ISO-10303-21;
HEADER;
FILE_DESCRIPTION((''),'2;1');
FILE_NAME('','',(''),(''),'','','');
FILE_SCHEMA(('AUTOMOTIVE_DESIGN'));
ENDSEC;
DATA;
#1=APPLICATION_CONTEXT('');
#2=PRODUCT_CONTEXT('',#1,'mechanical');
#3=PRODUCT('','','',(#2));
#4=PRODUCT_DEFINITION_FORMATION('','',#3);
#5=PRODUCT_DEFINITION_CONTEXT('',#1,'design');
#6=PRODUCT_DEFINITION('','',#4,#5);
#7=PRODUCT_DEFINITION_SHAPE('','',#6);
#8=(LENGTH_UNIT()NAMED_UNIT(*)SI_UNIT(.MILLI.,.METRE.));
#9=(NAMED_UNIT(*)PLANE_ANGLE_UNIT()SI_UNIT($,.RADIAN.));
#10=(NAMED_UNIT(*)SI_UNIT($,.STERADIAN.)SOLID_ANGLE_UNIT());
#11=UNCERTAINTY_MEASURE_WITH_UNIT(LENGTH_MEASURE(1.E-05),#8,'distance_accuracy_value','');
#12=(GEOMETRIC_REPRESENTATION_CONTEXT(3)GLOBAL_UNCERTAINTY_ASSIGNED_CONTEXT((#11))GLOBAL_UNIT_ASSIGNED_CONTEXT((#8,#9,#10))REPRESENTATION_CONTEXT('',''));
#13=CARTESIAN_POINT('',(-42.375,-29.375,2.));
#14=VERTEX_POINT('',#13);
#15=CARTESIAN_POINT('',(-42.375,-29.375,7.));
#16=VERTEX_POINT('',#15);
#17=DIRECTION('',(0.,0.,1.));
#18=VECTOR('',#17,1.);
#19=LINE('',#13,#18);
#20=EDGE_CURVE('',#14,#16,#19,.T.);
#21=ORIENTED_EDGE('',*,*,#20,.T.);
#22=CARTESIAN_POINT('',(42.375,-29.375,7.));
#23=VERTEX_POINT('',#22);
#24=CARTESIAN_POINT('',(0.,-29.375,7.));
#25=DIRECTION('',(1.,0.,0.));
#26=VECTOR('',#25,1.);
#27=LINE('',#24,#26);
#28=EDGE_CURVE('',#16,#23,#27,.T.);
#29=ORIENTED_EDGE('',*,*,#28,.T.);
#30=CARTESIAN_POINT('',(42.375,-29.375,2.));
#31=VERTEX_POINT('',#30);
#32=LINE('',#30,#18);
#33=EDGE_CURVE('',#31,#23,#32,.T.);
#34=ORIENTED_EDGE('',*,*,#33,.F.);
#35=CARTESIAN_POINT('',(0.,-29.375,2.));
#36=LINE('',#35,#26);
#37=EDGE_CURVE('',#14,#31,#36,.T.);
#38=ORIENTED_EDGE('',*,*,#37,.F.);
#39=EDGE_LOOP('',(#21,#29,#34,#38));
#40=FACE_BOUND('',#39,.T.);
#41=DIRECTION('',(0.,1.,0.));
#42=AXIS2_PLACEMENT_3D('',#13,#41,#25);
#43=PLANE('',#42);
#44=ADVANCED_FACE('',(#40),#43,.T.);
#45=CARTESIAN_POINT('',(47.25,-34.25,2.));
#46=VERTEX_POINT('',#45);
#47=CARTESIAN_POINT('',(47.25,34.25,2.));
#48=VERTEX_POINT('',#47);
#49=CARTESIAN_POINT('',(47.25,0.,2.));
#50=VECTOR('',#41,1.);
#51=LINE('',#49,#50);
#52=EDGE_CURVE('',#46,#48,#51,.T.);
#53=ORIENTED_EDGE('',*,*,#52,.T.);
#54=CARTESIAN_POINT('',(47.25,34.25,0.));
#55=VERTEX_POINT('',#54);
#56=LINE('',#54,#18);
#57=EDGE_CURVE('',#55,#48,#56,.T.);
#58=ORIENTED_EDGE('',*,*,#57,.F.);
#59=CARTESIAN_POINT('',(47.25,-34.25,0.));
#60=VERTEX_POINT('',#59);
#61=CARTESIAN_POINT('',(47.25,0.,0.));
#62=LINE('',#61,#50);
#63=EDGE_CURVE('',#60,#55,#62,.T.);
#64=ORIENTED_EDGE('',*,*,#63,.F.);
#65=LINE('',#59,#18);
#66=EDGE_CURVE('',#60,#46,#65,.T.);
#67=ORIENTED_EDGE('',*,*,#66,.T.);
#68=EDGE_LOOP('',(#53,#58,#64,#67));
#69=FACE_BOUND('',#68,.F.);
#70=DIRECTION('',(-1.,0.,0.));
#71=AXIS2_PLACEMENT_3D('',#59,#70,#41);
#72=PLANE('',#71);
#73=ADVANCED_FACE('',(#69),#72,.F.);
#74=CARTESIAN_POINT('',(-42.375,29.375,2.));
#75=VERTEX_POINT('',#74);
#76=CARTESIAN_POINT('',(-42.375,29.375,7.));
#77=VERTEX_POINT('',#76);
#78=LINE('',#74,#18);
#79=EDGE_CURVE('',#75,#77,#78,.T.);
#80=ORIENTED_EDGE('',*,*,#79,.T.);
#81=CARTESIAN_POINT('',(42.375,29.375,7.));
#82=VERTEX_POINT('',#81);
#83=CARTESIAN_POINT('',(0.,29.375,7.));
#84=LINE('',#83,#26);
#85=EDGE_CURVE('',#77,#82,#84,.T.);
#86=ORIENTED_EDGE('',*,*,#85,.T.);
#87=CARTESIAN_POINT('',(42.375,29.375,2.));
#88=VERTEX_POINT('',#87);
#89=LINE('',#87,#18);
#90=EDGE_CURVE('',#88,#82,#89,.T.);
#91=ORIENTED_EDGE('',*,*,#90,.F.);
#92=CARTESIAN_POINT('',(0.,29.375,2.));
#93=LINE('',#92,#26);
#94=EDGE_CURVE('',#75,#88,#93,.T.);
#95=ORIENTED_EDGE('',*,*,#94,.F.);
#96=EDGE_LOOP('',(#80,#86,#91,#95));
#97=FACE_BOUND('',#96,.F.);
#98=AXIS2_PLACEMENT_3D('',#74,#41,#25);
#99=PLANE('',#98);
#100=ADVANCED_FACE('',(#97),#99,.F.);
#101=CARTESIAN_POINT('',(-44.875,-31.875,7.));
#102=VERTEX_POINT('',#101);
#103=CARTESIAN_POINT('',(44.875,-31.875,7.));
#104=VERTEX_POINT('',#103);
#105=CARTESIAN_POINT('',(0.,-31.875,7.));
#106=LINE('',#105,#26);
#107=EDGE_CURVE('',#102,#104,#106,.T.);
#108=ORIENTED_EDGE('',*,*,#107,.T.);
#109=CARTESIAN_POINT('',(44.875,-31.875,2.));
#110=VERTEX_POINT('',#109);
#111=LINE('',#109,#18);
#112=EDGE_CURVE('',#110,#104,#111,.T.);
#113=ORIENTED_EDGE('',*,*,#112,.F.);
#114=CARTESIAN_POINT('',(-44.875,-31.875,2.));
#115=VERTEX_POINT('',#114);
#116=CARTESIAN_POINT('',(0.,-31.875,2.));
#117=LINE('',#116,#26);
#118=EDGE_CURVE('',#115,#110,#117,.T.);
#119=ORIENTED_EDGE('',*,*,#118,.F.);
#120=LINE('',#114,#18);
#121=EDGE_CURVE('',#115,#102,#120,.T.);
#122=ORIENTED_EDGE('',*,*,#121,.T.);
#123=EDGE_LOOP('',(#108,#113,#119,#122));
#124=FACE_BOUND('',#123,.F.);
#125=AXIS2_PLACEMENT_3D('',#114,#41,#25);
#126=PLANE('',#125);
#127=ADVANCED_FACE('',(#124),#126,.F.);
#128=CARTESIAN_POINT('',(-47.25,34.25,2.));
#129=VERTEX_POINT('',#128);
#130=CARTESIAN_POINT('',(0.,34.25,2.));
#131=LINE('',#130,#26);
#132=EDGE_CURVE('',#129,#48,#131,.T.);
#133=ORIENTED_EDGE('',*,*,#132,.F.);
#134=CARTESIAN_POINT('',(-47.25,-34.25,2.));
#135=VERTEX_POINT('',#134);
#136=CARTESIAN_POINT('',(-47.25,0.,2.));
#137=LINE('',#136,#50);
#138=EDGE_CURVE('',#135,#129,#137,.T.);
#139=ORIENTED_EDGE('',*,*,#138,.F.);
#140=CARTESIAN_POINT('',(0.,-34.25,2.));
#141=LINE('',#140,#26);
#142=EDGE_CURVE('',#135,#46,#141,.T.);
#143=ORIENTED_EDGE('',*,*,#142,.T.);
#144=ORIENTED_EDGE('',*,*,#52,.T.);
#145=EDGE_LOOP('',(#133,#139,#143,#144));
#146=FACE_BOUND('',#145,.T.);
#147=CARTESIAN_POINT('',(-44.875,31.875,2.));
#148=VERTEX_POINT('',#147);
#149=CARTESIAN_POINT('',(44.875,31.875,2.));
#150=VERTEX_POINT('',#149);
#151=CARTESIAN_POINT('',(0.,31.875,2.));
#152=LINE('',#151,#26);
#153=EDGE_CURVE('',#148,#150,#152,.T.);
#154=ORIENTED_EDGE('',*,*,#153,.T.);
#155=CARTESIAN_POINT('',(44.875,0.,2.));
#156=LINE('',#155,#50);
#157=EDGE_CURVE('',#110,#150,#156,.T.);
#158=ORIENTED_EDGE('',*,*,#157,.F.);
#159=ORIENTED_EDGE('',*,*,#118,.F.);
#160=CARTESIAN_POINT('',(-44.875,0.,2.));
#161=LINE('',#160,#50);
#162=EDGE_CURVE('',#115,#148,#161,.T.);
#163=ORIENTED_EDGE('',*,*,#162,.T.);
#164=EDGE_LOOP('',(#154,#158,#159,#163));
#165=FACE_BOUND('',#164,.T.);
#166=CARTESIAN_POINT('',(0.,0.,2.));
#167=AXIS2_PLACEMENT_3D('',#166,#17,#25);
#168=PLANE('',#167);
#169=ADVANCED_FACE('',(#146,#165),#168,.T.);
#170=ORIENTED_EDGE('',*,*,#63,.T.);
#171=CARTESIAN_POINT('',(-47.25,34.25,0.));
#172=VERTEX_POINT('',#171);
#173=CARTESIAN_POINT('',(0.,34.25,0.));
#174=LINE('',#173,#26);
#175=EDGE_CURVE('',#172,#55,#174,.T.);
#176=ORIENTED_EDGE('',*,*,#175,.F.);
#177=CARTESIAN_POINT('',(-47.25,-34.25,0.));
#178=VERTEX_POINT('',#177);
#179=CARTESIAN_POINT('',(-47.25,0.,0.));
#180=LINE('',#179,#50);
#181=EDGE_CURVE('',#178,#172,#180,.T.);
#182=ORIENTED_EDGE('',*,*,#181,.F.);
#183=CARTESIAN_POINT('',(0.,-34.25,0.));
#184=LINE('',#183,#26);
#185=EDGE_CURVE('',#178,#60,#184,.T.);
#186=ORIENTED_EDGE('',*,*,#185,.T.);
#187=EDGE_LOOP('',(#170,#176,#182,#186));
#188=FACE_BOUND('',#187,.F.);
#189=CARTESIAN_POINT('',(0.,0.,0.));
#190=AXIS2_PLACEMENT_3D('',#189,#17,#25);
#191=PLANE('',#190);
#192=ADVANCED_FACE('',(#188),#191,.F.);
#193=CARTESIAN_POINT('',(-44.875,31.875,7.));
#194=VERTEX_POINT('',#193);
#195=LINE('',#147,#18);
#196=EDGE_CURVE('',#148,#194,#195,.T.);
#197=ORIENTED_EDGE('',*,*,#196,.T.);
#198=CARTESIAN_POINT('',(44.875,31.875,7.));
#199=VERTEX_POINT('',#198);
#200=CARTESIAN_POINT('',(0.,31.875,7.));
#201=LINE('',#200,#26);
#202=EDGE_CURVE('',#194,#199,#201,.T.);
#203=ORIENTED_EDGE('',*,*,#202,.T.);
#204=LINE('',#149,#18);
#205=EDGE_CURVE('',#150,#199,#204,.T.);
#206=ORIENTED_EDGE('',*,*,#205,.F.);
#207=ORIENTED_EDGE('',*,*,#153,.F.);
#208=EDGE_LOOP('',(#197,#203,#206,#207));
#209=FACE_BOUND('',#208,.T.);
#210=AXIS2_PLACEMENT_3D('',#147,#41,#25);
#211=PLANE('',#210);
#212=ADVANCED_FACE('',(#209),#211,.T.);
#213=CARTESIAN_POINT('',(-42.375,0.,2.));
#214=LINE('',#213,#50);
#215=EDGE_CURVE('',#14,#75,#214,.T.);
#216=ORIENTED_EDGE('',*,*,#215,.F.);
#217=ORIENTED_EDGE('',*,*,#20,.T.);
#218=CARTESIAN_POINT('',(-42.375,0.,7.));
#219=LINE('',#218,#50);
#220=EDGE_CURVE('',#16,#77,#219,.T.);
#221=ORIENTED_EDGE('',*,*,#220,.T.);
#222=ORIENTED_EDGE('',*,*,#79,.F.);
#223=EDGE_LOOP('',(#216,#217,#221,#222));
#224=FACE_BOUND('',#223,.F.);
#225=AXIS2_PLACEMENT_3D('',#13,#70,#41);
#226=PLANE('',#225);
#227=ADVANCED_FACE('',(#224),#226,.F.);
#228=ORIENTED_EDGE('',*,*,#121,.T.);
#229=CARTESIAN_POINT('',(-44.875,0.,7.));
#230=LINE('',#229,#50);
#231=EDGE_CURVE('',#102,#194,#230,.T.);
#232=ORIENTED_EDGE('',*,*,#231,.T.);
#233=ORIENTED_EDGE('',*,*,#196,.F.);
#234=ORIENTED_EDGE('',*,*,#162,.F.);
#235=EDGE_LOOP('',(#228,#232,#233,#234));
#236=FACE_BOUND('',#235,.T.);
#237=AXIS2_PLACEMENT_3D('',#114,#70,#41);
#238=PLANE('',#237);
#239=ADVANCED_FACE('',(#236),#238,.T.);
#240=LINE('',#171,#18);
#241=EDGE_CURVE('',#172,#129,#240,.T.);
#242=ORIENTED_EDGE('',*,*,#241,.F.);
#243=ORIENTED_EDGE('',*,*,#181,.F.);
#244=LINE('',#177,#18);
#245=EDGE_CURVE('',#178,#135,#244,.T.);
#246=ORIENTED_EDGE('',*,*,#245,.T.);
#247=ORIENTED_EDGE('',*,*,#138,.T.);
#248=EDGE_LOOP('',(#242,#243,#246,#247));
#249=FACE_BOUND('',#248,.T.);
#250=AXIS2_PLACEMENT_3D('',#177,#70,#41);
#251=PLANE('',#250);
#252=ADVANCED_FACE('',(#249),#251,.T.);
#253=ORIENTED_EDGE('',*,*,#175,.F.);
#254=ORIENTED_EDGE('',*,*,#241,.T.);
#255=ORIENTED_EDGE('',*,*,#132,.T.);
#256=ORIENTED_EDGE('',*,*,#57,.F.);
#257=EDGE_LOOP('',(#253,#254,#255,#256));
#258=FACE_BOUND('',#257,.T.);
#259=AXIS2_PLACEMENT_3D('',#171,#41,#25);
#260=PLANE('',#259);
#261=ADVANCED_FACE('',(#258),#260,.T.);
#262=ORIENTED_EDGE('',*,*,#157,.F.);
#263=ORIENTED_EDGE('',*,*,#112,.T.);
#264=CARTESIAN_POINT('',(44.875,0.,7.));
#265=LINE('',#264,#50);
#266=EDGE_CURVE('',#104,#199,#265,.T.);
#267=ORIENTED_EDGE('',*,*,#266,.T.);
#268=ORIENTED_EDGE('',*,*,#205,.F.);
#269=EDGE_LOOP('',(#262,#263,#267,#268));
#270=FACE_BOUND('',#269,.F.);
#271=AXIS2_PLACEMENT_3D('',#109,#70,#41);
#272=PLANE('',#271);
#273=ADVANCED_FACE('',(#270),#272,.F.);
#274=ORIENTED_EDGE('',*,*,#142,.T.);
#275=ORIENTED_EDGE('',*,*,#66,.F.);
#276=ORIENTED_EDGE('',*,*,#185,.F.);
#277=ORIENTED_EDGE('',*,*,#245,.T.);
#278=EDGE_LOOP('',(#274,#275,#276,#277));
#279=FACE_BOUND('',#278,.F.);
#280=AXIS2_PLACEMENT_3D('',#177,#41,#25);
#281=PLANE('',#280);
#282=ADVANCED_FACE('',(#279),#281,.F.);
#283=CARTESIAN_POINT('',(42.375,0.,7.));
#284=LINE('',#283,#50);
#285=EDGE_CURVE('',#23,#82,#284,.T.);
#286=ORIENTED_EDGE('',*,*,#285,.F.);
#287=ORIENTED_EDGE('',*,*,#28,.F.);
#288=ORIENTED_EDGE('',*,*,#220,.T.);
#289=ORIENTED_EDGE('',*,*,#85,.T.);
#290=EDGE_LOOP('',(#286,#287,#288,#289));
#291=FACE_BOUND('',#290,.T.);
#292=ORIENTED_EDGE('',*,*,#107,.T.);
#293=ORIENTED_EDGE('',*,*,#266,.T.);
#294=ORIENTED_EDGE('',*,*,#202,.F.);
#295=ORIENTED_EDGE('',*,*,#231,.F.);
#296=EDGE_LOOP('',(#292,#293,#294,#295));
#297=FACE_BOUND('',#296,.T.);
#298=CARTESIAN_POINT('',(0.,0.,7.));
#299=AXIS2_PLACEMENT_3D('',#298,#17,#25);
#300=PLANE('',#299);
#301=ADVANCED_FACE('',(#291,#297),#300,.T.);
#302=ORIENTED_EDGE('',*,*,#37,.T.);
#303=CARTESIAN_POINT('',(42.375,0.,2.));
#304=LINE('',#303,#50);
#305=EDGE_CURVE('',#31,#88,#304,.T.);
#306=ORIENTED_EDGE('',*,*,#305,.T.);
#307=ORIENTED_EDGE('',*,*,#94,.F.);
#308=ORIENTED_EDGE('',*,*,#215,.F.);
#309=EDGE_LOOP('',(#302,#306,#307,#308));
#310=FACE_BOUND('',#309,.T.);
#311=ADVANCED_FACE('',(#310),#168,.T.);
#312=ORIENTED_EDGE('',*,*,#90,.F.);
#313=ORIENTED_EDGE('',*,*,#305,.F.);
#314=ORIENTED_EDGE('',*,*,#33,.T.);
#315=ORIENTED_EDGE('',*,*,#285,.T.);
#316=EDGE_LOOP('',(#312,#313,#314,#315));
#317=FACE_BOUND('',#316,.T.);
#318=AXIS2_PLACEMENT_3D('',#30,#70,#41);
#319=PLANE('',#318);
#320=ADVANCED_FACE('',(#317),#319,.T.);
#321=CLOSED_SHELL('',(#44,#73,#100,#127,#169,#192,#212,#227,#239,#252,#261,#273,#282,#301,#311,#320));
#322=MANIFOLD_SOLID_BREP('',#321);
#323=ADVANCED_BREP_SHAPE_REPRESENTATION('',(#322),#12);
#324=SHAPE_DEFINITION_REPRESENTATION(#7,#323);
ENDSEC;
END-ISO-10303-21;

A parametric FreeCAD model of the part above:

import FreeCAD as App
import Part
import Sketcher
from FreeCAD import Vector
Q = App.Units.Quantity


def add_polygon(sketch, points):
    """Adds a closed chain of lines whose ends are joined by coincident constraints."""
    first, n = sketch.GeometryCount, len(points)
    for a, b in zip(points, points[1:] + points[:1]):
        sketch.addGeometry(Part.LineSegment(App.Vector(*a, 0), App.Vector(*b, 0)), False)
    for i in range(n):
        sketch.addConstraint(Sketcher.Constraint("Coincident", first + i, 2, first + (i + 1) % n, 1))

doc = App.newDocument("Part")
params = doc.addObject("Spreadsheet::Sheet", "Params")
for row, (alias, value) in enumerate([
    ("sketch1_width", "94.5 mm"),
    ("sketch1_height", "68.5 mm"),
    ("pad1_length", "2 mm"),
    ("sketch2_width", "89.75 mm"),
    ("sketch2_width2", "84.75 mm"),
    ("sketch2_height", "63.75 mm"),
    ("sketch2_height2", "58.75 mm"),
    ("pad2_length", "5 mm"),
], start=1):
    params.set(f"A{row}", alias)
    params.set(f"B{row}", "=" + value)
    params.setAlias(f"B{row}", alias)

body = doc.addObject("PartDesign::Body", "Body")

sketch1 = doc.addObject("Sketcher::SketchObject", "Sketch")
body.addObject(sketch1)
sketch1.AttachmentSupport = (doc.XY_Plane, [""])
sketch1.MapMode = "FlatFace"
add_polygon(sketch1, [(-47.25, 34.25), (-47.25, -34.25), (47.25, -34.25), (47.25, 34.25)])
sketch1.addConstraint([
    Sketcher.Constraint("Vertical", 0),
    Sketcher.Constraint("Horizontal", 1),
    Sketcher.Constraint("Vertical", 2),
    Sketcher.Constraint("Horizontal", 3),
    Sketcher.Constraint("Symmetric", 0, 2, 2, 2, -1, 1),
    Sketcher.Constraint("DistanceX", 1, 1, 1, 2, Q("94.5 mm")),
    Sketcher.Constraint("DistanceY", 0, 2, 0, 1, Q("68.5 mm")),
])
sketch1.setExpression("Constraints[9]", "Params.sketch1_width")
sketch1.setExpression("Constraints[10]", "Params.sketch1_height")
pad1 = doc.addObject("PartDesign::Pad", "Pad")
body.addObject(pad1)
pad1.Profile = sketch1
pad1.setExpression("Length", "Params.pad1_length")

sketch2 = doc.addObject("Sketcher::SketchObject", "Sketch001")
body.addObject(sketch2)
sketch2.AttachmentSupport = (doc.XY_Plane, [""])
sketch2.MapMode = "FlatFace"
sketch2.AttachmentOffset = App.Placement(Vector(0, 0, 2), App.Rotation())
add_polygon(sketch2, [(-44.875, 31.875), (-44.875, -31.875), (44.875, -31.875), (44.875, 31.875)])
add_polygon(sketch2, [(42.375, -29.375), (-42.375, -29.375), (-42.375, 29.375), (42.375, 29.375)])
sketch2.addConstraint([
    Sketcher.Constraint("Vertical", 0),
    Sketcher.Constraint("Horizontal", 1),
    Sketcher.Constraint("Vertical", 2),
    Sketcher.Constraint("Horizontal", 3),
    Sketcher.Constraint("Horizontal", 4),
    Sketcher.Constraint("Vertical", 5),
    Sketcher.Constraint("Horizontal", 6),
    Sketcher.Constraint("Vertical", 7),
    Sketcher.Constraint("Symmetric", 0, 2, 2, 2, -1, 1),
    Sketcher.Constraint("Symmetric", 4, 2, 6, 2, -1, 1),
    Sketcher.Constraint("DistanceX", 1, 1, 1, 2, Q("89.75 mm")),
    Sketcher.Constraint("DistanceX", 4, 2, 4, 1, Q("84.75 mm")),
    Sketcher.Constraint("DistanceY", 0, 2, 0, 1, Q("63.75 mm")),
    Sketcher.Constraint("DistanceY", 5, 1, 5, 2, Q("58.75 mm")),
])
sketch2.setExpression("Constraints[18]", "Params.sketch2_width")
sketch2.setExpression("Constraints[19]", "Params.sketch2_width2")
sketch2.setExpression("Constraints[20]", "Params.sketch2_height")
sketch2.setExpression("Constraints[21]", "Params.sketch2_height2")
pad2 = doc.addObject("PartDesign::Pad", "Pad001")
body.addObject(pad2)
pad2.Profile = sketch2
pad2.setExpression("Length", "Params.pad2_length")

doc.recompute()
